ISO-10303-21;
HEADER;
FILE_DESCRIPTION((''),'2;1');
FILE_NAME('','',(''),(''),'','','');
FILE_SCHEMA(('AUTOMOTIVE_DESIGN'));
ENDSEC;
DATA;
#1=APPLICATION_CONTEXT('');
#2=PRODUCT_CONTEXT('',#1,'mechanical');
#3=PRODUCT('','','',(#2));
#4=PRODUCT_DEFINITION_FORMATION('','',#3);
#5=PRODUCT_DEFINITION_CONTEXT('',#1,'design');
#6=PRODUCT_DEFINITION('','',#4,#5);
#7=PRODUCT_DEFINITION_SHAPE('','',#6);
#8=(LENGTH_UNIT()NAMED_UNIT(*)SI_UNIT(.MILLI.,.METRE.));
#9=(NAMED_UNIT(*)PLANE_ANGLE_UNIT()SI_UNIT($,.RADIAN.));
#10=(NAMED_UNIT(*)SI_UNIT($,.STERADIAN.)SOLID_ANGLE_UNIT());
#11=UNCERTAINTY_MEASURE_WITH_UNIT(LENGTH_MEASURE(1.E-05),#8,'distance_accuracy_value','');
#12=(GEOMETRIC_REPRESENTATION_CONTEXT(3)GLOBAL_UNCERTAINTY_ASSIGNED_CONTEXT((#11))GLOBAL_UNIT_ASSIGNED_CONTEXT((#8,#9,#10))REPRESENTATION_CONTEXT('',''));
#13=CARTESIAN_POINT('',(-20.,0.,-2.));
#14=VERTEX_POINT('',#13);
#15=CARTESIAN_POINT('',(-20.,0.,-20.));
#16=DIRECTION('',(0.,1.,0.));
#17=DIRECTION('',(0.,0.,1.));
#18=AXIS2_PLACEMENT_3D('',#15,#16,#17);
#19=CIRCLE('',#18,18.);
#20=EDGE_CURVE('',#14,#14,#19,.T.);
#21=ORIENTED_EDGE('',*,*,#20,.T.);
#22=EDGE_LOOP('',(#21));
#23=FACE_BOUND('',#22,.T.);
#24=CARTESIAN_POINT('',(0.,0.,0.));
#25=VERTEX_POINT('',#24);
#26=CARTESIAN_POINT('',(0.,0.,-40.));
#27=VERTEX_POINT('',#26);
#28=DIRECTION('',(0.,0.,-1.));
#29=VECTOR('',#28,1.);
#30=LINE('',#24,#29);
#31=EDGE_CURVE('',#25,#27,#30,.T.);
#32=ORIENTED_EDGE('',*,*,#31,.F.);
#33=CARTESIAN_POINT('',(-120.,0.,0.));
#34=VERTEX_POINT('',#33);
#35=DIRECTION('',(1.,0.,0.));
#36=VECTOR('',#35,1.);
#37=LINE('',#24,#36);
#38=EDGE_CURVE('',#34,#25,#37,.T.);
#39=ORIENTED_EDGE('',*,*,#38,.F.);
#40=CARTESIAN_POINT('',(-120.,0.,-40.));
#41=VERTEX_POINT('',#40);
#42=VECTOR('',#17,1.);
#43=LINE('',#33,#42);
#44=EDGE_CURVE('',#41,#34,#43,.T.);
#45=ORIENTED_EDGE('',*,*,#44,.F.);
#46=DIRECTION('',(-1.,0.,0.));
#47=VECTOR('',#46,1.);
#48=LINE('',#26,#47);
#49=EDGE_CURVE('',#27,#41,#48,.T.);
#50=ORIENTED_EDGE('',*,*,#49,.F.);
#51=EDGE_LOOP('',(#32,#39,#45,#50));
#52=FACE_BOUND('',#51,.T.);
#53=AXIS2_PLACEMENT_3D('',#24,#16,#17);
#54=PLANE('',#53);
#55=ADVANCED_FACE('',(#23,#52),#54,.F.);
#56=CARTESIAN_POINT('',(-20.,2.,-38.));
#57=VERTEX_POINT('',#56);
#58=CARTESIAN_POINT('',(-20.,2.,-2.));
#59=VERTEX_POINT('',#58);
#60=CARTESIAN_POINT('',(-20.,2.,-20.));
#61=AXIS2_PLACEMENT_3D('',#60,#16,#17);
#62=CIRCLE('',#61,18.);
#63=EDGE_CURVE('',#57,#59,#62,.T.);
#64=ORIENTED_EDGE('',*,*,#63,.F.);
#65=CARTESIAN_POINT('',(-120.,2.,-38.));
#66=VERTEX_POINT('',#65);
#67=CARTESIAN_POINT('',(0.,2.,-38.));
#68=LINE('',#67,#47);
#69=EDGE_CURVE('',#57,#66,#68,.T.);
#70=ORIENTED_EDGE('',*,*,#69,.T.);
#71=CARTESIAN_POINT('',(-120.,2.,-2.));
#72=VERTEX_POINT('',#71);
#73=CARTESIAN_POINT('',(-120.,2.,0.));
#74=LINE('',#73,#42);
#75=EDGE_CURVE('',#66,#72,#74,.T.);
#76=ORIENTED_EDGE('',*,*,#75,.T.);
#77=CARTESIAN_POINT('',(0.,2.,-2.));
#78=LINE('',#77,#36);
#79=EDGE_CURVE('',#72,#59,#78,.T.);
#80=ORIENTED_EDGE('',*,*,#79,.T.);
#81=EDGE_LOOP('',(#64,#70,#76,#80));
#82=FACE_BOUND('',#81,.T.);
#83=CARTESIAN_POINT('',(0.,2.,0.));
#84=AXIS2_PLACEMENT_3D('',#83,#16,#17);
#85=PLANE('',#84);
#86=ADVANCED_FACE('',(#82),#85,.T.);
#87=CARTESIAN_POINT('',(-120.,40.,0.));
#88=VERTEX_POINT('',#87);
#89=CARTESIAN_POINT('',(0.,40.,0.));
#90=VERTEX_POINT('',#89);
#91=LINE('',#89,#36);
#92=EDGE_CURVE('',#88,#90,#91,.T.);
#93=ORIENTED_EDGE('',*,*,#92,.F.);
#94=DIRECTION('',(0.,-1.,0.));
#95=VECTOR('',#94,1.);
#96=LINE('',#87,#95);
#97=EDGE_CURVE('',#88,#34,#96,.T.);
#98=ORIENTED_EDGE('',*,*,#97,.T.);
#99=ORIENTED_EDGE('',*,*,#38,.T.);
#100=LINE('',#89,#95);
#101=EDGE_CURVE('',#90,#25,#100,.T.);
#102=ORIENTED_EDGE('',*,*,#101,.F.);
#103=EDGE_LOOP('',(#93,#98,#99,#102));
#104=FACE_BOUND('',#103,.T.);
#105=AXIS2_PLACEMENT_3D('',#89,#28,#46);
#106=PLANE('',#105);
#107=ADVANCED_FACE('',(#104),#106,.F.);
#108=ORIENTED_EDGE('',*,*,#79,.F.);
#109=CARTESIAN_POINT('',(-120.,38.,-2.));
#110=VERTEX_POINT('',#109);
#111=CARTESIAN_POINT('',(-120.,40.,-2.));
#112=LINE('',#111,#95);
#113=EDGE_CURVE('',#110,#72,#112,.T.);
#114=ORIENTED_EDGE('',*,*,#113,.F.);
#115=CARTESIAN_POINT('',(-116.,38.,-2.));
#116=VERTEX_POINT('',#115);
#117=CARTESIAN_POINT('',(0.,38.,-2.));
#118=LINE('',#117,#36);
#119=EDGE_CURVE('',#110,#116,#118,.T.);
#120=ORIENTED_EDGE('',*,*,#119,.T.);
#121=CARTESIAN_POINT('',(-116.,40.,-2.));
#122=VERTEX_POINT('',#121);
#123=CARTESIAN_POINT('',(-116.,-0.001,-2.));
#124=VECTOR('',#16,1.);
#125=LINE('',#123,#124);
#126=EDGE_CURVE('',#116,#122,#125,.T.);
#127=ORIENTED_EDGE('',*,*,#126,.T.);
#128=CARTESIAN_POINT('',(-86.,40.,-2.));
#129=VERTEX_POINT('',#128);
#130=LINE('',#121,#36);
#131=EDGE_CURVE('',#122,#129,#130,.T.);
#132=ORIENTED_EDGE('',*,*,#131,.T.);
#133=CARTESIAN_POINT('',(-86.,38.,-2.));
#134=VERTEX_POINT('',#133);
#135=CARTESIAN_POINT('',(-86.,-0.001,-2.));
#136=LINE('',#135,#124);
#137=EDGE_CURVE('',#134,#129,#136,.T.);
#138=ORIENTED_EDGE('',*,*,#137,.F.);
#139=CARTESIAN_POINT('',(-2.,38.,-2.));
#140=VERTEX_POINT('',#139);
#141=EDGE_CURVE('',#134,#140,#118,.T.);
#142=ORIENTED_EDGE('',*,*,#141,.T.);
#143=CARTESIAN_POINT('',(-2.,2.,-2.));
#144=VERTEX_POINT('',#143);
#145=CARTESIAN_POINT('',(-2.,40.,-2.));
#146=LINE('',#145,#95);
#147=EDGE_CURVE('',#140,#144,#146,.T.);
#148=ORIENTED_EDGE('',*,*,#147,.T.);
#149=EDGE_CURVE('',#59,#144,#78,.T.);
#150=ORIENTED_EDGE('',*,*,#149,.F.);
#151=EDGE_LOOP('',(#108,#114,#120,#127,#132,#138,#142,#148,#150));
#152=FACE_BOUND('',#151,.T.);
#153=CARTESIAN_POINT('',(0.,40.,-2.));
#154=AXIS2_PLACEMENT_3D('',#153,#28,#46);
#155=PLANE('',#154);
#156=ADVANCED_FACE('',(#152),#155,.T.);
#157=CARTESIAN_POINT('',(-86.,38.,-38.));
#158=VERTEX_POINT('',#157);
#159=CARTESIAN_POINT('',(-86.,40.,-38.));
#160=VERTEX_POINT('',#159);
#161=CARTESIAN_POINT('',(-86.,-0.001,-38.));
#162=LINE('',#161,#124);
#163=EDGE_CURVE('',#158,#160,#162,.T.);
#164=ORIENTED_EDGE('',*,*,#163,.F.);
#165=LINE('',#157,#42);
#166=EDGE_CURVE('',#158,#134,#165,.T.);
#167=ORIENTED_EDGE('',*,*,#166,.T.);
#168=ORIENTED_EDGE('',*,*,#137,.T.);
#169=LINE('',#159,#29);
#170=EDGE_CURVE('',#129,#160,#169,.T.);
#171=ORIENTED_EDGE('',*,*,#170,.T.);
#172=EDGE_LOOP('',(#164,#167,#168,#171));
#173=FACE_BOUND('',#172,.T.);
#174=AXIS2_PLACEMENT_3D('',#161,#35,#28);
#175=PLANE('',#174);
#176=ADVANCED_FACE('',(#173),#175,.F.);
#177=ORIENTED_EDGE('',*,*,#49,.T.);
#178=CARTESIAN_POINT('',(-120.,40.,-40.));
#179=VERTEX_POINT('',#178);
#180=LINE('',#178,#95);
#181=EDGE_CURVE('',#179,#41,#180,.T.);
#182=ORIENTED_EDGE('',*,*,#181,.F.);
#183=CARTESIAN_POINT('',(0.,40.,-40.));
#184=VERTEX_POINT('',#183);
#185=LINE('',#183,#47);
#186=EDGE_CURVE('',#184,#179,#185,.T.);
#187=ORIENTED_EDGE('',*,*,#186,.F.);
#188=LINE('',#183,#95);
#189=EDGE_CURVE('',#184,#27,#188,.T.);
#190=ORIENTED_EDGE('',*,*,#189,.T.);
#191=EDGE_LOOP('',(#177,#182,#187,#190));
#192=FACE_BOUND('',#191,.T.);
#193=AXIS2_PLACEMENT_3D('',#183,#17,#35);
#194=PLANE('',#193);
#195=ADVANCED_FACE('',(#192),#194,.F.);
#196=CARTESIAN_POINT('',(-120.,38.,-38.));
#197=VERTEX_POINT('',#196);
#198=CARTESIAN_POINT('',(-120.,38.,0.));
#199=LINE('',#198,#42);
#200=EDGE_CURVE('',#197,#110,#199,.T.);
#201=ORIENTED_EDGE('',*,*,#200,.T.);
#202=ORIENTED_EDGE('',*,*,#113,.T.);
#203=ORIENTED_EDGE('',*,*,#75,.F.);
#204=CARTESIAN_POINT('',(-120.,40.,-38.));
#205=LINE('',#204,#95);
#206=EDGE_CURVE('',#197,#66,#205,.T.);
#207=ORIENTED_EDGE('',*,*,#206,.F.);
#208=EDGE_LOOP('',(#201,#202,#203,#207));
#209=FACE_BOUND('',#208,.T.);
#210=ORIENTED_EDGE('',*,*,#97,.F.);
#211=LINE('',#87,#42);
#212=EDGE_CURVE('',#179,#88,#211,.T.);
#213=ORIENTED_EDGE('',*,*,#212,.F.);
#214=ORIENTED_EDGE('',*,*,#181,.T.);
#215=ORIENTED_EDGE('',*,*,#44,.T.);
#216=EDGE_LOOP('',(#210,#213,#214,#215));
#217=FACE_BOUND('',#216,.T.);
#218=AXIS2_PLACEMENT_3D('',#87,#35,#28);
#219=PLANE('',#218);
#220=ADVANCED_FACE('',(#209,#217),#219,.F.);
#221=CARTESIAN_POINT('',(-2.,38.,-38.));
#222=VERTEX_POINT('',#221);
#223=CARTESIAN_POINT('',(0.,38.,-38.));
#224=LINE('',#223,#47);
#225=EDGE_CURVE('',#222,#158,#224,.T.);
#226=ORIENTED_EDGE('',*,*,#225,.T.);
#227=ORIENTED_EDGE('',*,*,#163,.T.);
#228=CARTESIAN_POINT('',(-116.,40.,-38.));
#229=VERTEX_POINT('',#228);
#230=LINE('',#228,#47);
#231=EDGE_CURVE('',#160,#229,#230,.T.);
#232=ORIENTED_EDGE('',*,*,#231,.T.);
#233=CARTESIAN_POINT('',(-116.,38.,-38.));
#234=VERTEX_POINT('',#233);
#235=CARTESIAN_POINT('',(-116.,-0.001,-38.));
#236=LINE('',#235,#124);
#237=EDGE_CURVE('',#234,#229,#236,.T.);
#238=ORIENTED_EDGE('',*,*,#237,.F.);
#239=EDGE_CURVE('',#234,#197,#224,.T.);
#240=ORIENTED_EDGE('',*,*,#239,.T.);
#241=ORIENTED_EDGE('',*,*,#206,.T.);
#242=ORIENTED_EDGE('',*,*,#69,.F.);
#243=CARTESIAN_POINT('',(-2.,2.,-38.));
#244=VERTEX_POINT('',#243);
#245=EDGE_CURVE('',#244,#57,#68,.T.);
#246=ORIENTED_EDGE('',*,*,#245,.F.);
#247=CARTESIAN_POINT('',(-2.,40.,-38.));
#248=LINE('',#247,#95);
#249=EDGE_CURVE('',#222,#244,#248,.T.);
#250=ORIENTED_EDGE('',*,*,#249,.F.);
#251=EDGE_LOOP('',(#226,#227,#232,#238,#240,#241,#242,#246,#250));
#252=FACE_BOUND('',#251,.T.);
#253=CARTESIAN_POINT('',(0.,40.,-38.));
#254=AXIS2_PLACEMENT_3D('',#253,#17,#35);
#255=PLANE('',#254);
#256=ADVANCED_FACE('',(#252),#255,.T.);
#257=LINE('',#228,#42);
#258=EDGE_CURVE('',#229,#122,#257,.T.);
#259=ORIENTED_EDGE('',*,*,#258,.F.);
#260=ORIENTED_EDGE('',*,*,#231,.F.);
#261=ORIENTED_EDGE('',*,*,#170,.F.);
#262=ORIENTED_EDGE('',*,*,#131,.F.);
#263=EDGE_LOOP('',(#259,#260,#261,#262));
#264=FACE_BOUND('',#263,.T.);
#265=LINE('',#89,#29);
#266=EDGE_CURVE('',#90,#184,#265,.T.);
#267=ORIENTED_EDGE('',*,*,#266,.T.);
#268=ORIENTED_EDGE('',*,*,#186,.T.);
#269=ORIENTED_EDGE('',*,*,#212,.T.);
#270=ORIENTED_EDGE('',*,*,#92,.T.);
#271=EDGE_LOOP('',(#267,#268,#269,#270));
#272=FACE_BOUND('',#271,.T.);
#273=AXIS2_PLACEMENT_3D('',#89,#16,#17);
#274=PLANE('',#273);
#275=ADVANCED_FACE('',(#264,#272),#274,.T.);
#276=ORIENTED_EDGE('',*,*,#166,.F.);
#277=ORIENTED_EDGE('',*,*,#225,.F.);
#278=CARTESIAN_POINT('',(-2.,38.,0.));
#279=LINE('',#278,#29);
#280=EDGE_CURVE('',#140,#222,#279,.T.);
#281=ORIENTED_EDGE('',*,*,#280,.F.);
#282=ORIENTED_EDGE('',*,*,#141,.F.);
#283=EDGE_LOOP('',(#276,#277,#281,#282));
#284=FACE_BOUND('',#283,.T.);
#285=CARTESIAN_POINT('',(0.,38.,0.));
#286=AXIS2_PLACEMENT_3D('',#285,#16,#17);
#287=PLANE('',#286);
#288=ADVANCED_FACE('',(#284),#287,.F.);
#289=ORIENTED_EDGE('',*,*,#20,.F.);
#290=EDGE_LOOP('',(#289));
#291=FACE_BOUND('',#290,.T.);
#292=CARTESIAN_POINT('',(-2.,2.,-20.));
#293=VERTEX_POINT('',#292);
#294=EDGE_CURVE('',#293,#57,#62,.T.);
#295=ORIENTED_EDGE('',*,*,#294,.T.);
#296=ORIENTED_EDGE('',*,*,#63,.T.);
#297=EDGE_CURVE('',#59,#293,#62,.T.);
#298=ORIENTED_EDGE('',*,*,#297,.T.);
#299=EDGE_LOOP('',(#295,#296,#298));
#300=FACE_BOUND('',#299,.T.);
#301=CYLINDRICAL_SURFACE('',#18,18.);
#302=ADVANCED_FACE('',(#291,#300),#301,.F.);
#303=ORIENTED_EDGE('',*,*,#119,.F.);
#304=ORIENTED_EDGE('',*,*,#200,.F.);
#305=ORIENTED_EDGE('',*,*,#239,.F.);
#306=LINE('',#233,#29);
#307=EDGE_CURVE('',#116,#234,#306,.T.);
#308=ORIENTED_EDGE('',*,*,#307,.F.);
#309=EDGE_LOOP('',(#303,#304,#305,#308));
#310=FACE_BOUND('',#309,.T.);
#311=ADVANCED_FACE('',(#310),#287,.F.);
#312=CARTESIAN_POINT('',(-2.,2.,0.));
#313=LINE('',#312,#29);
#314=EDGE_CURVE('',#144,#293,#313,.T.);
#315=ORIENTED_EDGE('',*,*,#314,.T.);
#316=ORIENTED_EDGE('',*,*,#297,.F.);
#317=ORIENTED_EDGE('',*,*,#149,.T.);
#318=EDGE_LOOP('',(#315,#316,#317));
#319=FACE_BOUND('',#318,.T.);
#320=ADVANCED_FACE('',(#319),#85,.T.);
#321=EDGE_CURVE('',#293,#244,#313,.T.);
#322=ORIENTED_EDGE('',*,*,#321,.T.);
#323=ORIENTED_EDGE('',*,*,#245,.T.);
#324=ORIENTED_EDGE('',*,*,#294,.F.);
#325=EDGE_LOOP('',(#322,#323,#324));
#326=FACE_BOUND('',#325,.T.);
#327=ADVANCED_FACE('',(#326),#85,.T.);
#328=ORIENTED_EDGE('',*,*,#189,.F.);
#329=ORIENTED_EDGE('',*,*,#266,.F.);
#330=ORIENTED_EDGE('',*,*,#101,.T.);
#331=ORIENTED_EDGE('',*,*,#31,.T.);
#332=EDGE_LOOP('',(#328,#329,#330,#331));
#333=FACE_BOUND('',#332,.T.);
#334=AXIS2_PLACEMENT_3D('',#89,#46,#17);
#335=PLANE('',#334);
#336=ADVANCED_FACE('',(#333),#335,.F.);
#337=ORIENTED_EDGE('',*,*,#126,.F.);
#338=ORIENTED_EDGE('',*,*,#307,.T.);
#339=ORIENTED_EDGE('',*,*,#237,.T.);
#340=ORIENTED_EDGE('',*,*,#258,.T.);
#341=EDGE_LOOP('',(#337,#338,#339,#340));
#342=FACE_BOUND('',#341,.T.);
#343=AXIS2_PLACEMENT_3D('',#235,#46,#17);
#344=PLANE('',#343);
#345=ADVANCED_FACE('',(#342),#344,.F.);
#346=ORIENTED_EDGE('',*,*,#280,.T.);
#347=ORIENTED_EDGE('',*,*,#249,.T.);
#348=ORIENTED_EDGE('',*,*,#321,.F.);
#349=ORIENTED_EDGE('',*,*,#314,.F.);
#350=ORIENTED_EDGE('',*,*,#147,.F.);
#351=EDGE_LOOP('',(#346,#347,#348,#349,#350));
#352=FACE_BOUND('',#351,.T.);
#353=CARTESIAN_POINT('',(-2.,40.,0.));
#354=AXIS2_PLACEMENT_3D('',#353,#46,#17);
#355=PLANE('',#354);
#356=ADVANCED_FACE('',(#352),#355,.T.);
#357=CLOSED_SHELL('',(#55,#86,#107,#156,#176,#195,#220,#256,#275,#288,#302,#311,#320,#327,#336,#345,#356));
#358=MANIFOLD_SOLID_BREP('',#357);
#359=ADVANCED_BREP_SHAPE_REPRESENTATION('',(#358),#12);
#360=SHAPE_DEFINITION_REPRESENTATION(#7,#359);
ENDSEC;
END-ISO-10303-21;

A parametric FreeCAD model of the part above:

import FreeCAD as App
import Part
import Sketcher


def faces_at(feature, points):
    """Names of the faces that lie closest to the given points."""
    faces = feature.Shape.Faces
    near = lambda p: min(range(len(faces)), key=lambda i: faces[i].distToShape(Part.Vertex(*p))[0])
    return sorted({f"Face{near(p) + 1}" for p in points})

doc = App.newDocument("Part")
body = doc.addObject("PartDesign::Body", "Body")

# Sketch on XZ plane
sketch1 = body.newObject("Sketcher::SketchObject", "Sketch")
sketch1.AttachmentSupport = (doc.getObject("XZ_Plane"), [""])
sketch1.MapMode = "FlatFace"
sketch1.addGeometry([
    Part.LineSegment(App.Vector(-120, -40, 0), App.Vector(-120, 0, 0)),
    Part.LineSegment(App.Vector(-120, 0, 0), App.Vector(0, 0, 0)),
    Part.LineSegment(App.Vector(0, 0, 0), App.Vector(0, -40, 0)),
    Part.LineSegment(App.Vector(0, -40, 0), App.Vector(-120, -40, 0)),
], False)
sketch1.addConstraint([
    Sketcher.Constraint("Coincident", 0, 2, 1, 1),
    Sketcher.Constraint("Coincident", 1, 2, 2, 1),
    Sketcher.Constraint("Coincident", 2, 2, 3, 1),
    Sketcher.Constraint("Coincident", 3, 2, 0, 1),
    Sketcher.Constraint("Vertical", 0),
    Sketcher.Constraint("Horizontal", 1),
    Sketcher.Constraint("Vertical", 2),
    Sketcher.Constraint("Horizontal", 3),
    Sketcher.Constraint("Coincident", 1, 2, -1, 1),
    Sketcher.Constraint("DistanceX", 1, 1, 1, 2, 120.0),
    Sketcher.Constraint("DistanceY", 0, 1, 0, 2, 40.0),
])
pad1 = body.newObject("PartDesign::Pad", "Pad")
pad1.Profile = sketch1
pad1.Length = 40
pad1.Reversed = True
doc.recompute()

thickness = body.newObject("PartDesign::Thickness", "Thickness")
thickness.Base = (pad1, faces_at(pad1, [(-120, 20, -20)]))
thickness.Value = 2
thickness.Reversed = True
thickness.Join = "Intersection"

# Sketch on XZ plane
sketch2 = body.newObject("Sketcher::SketchObject", "Sketch001")
sketch2.AttachmentSupport = (doc.getObject("XZ_Plane"), [""])
sketch2.MapMode = "FlatFace"
sketch2.AttachmentOffset = App.Placement(App.Vector(0, 0, -2), App.Rotation())
sketch2.addGeometry(Part.Circle(App.Vector(-20, -20, 0), App.Vector(0, 0, 1), 18), False)
sketch2.addConstraint([
    Sketcher.Constraint("Diameter", 0, 36.0),
    Sketcher.Constraint("DistanceX", 0, 3, -1, 1, 20.0),
    Sketcher.Constraint("DistanceY", 0, 3, -1, 1, 20.0),
])
pocket1 = body.newObject("PartDesign::Pocket", "Pocket")
pocket1.Profile = sketch2
pocket1.Type = "ThroughAll"
pocket1.Reversed = True

# Sketch on XZ plane
sketch3 = body.newObject("Sketcher::SketchObject", "Sketch002")
sketch3.AttachmentSupport = (doc.getObject("XZ_Plane"), [""])
sketch3.MapMode = "FlatFace"
sketch3.AttachmentOffset = App.Placement(App.Vector(0, 0, -40), App.Rotation())
sketch3.addGeometry([
    Part.LineSegment(App.Vector(-116, -38, 0), App.Vector(-116, -2, 0)),
    Part.LineSegment(App.Vector(-116, -2, 0), App.Vector(-86, -2, 0)),
    Part.LineSegment(App.Vector(-86, -2, 0), App.Vector(-86, -38, 0)),
    Part.LineSegment(App.Vector(-86, -38, 0), App.Vector(-116, -38, 0)),
], False)
sketch3.addConstraint([
    Sketcher.Constraint("Coincident", 0, 2, 1, 1),
    Sketcher.Constraint("Coincident", 1, 2, 2, 1),
    Sketcher.Constraint("Coincident", 2, 2, 3, 1),
    Sketcher.Constraint("Coincident", 3, 2, 0, 1),
    Sketcher.Constraint("Vertical", 0),
    Sketcher.Constraint("Horizontal", 1),
    Sketcher.Constraint("Vertical", 2),
    Sketcher.Constraint("Horizontal", 3),
    Sketcher.Constraint("DistanceX", 1, 1, 1, 2, 30.0),
    Sketcher.Constraint("DistanceY", 0, 1, 0, 2, 36.0),
    Sketcher.Constraint("DistanceX", 0, 2, -1, 1, 116.0),
    Sketcher.Constraint("DistanceY", 0, 2, -1, 1, 2.0),
])
pocket2 = body.newObject("PartDesign::Pocket", "Pocket001")
pocket2.Profile = sketch3
pocket2.Type = "UpToFirst"
pocket2.Reversed = True

doc.recompute()
